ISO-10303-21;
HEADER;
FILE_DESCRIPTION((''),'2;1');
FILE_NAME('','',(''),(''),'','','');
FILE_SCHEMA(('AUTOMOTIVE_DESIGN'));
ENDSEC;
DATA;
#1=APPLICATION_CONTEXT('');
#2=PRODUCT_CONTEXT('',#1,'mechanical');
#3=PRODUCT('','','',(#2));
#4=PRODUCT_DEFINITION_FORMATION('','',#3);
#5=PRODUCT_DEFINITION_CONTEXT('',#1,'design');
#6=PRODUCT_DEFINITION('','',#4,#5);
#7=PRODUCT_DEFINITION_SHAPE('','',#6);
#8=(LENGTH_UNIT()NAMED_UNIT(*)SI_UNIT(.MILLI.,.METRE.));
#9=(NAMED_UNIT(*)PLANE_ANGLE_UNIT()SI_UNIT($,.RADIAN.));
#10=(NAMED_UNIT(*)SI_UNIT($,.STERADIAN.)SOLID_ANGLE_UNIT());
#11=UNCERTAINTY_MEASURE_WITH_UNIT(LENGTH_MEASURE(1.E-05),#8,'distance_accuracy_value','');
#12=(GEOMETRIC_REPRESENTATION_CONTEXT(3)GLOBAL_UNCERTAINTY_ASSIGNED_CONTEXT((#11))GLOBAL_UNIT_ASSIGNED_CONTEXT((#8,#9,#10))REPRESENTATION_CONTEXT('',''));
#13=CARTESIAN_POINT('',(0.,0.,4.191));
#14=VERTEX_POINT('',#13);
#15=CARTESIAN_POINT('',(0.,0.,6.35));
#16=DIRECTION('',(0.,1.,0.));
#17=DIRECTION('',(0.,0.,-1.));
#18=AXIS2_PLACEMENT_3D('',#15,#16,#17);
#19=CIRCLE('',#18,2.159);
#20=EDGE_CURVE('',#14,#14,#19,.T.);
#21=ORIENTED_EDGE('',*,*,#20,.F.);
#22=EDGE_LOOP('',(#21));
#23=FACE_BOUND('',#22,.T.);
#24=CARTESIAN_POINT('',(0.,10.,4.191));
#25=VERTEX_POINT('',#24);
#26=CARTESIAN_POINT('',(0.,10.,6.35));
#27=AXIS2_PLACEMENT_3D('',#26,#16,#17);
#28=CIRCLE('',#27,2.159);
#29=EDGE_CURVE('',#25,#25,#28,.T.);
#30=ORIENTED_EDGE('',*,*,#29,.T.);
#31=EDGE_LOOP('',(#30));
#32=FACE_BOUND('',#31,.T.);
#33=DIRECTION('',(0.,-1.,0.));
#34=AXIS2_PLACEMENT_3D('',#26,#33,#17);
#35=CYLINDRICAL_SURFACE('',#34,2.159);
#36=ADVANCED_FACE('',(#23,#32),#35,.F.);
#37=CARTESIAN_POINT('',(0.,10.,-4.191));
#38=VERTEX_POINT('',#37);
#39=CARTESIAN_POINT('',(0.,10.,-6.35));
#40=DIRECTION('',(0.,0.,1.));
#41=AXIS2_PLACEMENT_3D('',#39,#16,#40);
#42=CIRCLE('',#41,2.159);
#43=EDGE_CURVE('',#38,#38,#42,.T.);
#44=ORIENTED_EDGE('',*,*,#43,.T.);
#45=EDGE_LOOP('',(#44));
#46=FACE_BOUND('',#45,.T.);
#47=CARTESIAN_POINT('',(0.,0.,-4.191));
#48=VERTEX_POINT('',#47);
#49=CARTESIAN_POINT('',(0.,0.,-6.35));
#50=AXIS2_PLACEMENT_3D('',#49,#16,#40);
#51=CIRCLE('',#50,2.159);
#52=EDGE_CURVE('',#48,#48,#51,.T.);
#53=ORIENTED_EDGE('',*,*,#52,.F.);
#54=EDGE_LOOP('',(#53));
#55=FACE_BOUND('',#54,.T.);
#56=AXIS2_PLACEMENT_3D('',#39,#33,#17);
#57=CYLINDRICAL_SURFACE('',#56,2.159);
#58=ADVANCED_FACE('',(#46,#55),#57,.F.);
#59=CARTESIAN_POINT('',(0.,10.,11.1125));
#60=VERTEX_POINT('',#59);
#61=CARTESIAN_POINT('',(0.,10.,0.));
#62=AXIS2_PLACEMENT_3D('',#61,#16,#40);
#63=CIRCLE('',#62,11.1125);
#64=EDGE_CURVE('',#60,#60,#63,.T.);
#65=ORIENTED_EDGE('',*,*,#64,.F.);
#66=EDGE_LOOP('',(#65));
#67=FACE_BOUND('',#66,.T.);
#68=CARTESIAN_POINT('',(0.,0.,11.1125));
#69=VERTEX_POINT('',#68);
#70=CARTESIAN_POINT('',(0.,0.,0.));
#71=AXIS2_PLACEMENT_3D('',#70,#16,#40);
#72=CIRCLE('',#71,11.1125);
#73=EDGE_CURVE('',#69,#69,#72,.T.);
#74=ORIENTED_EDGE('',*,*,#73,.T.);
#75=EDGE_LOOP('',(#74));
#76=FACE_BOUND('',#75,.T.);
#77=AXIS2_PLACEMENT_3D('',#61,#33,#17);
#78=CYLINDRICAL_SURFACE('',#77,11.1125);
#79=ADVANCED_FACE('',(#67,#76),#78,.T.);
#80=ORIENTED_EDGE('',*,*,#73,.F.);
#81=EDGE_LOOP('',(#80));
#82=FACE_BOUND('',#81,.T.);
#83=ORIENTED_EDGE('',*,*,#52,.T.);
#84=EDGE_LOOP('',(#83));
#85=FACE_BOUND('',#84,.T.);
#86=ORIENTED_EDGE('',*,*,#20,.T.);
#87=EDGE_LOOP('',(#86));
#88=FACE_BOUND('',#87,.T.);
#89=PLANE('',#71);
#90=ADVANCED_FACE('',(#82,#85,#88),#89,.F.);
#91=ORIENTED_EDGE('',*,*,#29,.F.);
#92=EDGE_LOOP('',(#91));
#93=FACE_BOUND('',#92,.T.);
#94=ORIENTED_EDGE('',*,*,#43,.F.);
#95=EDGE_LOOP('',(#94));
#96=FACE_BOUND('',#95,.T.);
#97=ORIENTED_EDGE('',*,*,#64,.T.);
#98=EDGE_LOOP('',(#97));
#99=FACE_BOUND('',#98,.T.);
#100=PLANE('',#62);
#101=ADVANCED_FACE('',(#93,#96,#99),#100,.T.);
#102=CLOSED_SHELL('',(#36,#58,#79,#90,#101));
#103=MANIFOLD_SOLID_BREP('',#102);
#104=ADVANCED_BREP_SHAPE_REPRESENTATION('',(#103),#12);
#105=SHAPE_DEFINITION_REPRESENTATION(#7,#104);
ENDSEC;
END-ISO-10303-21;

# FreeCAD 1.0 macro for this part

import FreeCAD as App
import Part
import Sketcher
Q = App.Units.Quantity

doc = App.newDocument("Part")
body = doc.addObject("PartDesign::Body", "Body")

# Sketch on XZ plane
sketch1 = body.newObject("Sketcher::SketchObject", "Sketch")
sketch1.AttachmentSupport = (doc.getObject("XZ_Plane"), [""])
sketch1.MapMode = "FlatFace"
sketch1.addGeometry([
    Part.Circle(App.Vector(0, 0, 0), App.Vector(0, 0, 1), 11.1),
    Part.Circle(App.Vector(0, -6.3, 0), App.Vector(0, 0, 1), 2.2),
    Part.Circle(App.Vector(0, 6.3, 0), App.Vector(0, 0, 1), 2.2),
], False)
sketch1.addConstraint([
    Sketcher.Constraint("Coincident", 0, 3, -1, 1),
    Sketcher.Constraint("Equal", 1, 2),
    Sketcher.Constraint("Symmetric", 1, 3, 2, 3, -1, 1),
    Sketcher.Constraint("PointOnObject", 1, 3, -2),
    Sketcher.Constraint("Diameter", 1, Q("0.17 in")),
    Sketcher.Constraint("Diameter", 0, Q("0.875 in")),
    Sketcher.Constraint("DistanceY", 1, 3, 2, 3, Q("0.5 in")),
])
pad1 = body.newObject("PartDesign::Pad", "Pad")
pad1.Profile = sketch1
pad1.Length = 10
pad1.Reversed = True

doc.recompute()
